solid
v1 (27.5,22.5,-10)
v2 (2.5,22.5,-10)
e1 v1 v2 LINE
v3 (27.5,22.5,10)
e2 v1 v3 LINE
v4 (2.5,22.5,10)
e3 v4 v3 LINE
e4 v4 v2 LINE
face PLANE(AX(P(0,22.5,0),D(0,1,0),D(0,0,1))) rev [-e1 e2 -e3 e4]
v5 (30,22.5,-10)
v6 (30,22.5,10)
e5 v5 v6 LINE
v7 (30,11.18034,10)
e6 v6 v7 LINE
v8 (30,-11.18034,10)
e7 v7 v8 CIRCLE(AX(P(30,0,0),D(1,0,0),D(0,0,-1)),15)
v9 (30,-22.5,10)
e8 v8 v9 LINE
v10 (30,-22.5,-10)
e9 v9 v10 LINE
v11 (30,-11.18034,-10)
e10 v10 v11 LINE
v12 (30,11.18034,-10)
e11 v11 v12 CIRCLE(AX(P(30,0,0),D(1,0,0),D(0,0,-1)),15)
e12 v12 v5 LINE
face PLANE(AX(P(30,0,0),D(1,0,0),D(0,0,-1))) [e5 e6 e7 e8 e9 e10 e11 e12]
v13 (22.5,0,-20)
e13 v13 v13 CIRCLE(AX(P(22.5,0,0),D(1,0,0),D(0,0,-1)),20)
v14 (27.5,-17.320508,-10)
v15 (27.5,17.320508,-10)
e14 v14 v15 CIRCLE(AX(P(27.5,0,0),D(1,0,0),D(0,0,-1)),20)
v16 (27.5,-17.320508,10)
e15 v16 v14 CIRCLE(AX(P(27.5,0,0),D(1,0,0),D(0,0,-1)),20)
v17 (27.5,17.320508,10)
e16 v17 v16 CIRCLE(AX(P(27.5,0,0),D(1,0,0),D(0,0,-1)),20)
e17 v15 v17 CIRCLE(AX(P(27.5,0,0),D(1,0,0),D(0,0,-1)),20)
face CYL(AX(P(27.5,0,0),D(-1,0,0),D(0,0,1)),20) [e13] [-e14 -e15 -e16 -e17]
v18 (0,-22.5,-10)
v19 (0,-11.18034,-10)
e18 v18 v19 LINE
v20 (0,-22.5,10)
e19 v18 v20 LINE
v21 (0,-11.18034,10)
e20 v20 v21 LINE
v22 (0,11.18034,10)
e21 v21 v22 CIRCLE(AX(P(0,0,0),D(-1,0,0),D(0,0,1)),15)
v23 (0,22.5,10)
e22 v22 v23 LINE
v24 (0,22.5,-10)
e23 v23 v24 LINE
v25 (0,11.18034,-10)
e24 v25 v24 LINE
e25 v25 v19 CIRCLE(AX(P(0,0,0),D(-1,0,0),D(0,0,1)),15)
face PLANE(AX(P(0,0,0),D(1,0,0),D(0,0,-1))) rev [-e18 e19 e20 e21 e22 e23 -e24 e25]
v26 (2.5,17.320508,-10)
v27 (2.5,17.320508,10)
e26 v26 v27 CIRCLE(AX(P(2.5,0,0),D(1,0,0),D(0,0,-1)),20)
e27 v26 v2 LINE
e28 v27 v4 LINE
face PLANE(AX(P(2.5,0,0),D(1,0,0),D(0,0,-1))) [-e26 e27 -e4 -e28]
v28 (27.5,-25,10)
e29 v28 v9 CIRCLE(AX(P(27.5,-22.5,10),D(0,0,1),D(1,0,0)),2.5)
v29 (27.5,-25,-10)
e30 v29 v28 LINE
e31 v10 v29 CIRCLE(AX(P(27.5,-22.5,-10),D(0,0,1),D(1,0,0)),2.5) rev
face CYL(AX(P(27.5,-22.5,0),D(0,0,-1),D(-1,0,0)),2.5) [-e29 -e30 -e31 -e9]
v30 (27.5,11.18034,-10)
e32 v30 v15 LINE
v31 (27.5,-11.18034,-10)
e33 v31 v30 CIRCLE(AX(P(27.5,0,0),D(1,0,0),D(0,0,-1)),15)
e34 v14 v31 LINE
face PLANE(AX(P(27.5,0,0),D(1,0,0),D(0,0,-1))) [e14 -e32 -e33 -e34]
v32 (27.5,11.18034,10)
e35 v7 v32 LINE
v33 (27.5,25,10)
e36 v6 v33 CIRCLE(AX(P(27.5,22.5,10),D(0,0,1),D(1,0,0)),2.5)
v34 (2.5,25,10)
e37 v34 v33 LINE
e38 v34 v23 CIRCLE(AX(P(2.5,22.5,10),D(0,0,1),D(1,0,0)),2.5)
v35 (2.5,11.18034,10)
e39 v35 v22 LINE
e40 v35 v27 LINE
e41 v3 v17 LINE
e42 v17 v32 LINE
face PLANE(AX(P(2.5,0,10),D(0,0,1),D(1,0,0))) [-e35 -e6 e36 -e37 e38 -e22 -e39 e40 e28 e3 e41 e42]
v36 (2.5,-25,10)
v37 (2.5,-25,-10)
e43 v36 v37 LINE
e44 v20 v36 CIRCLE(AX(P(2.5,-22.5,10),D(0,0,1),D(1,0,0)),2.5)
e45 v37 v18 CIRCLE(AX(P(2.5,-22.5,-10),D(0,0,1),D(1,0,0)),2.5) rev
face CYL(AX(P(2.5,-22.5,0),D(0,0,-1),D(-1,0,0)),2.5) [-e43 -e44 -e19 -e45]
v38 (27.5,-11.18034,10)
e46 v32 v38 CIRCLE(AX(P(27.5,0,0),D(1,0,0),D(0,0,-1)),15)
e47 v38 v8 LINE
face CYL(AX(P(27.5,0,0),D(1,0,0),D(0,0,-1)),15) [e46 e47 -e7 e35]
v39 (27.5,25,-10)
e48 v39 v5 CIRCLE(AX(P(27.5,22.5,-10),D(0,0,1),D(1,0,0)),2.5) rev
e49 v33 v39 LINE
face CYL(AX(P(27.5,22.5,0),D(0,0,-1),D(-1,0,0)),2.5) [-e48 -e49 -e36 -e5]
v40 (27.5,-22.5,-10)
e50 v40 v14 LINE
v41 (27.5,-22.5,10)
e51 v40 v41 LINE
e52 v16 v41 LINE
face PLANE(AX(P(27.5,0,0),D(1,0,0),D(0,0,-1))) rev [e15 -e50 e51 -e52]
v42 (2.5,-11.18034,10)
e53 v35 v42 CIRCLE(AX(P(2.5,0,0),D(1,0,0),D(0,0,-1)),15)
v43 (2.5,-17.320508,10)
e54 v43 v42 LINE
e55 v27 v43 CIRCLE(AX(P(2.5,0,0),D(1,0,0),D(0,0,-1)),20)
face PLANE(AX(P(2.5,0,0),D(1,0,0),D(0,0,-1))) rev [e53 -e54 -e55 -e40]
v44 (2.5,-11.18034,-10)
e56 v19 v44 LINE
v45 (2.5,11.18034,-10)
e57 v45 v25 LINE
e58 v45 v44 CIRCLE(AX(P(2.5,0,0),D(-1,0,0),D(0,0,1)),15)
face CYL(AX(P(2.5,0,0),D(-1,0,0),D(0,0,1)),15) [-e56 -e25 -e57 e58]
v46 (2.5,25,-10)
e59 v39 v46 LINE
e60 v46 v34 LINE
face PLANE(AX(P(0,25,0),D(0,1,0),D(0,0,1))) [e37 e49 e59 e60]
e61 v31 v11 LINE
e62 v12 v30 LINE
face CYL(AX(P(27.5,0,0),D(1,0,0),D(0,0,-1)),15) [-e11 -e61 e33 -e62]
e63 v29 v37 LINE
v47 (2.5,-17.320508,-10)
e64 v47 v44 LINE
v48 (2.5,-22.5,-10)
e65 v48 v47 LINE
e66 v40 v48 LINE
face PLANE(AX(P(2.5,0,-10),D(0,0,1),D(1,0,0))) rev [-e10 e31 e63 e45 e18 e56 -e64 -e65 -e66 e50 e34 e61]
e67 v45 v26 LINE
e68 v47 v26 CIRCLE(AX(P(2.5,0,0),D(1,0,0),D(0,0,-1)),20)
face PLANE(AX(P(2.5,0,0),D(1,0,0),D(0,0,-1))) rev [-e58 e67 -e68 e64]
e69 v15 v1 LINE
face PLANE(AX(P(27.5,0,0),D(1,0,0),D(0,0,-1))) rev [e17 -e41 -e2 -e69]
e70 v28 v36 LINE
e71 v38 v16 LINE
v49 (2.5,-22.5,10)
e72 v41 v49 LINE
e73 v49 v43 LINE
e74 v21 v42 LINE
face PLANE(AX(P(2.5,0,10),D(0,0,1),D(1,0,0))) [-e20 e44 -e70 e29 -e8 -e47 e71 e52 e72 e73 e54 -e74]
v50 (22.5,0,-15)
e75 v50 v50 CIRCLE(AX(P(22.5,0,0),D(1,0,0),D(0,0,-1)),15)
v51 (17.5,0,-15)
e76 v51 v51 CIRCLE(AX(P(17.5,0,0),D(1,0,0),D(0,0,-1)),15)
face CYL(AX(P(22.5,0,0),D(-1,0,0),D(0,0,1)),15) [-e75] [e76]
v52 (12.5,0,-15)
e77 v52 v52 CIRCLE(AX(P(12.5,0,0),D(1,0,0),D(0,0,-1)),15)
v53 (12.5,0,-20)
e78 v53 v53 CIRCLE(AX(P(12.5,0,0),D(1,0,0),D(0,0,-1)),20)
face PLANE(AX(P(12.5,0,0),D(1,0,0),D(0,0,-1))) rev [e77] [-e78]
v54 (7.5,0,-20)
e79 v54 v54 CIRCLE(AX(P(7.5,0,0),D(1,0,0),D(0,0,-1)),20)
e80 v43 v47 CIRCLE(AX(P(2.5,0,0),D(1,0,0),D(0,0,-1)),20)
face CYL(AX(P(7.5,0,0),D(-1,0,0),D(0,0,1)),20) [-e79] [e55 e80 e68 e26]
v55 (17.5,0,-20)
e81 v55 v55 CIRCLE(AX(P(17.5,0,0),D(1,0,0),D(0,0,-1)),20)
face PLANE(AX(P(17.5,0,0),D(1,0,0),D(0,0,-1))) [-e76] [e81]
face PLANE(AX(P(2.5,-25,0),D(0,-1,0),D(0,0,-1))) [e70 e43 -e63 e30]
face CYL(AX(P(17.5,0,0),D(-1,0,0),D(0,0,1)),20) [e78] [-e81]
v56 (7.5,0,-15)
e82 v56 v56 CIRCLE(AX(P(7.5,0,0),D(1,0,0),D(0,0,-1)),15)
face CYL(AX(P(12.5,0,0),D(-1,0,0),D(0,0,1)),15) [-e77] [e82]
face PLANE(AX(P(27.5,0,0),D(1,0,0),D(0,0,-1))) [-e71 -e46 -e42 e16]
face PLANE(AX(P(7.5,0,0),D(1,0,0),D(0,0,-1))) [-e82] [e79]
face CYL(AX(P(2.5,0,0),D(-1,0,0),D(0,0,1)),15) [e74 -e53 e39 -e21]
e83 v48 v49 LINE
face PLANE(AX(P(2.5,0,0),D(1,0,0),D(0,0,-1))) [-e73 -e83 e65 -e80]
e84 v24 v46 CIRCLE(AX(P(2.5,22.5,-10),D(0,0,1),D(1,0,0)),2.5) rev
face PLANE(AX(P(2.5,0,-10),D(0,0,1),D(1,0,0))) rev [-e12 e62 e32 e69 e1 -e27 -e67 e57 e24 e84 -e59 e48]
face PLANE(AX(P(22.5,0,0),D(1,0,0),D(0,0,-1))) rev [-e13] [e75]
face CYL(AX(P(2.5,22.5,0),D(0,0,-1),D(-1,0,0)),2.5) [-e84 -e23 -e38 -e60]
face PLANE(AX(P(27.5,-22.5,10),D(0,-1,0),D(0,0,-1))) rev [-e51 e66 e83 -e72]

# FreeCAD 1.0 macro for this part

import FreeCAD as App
import Part
import Sketcher
Q = App.Units.Quantity


def edges_at(feature, points):
    """Names of the edges that pass closest to the given points."""
    edges = feature.Shape.Edges
    near = lambda p: min(range(len(edges)), key=lambda i: edges[i].distToShape(Part.Vertex(*p))[0])
    return sorted({f"Edge{near(p) + 1}" for p in points})


def add_polygon(sketch, points):
    """Adds a closed chain of lines whose ends are joined by coincident constraints."""
    first, n = sketch.GeometryCount, len(points)
    for a, b in zip(points, points[1:] + points[:1]):
        sketch.addGeometry(Part.LineSegment(App.Vector(*a, 0), App.Vector(*b, 0)), False)
    for i in range(n):
        sketch.addConstraint(Sketcher.Constraint("Coincident", first + i, 2, first + (i + 1) % n, 1))

doc = App.newDocument("Part")
params = doc.addObject("Spreadsheet::Sheet", "Params")
for row, (alias, value) in enumerate([
    ("sketch1_height", "20 mm"),
    ("sketch1_width", "47.5 mm"),
    ("pad1_length", "2.5 mm"),
    ("sketch2_diameter", "40 mm"),
    ("pad2_length", "5 mm"),
    ("sketch3_diameter", "30 mm"),
    ("pad3_length", "5 mm"),
    ("sketch4_diameter", "40 mm"),
    ("pad4_length", "5 mm"),
    ("sketch5_diameter", "30 mm"),
    ("pad5_length", "5 mm"),
    ("sketch6_diameter", "40 mm"),
    ("pad6_length", "5 mm"),
    ("sketch7_height", "20 mm"),
    ("sketch7_width", "47.5 mm"),
    ("pad7_length", "2.5 mm"),
    ("sketch8_width", "30 mm"),
    ("sketch8_height", "20 mm"),
    ("pad8_length", "2.5 mm"),
    ("sketch9_height", "20 mm"),
    ("sketch9_width", "2.5 mm"),
    ("pad9_length", "25 mm"),
    ("sketch10_diameter", "30 mm"),
    ("pad10_length", "2.5 mm"),
    ("sketch11_diameter", "30 mm"),
    ("pad11_length", "2.5 mm"),
    ("fillet_radius", "2.5 mm"),
    ("fillet2_radius", "2.5 mm"),
], start=1):
    params.set(f"A{row}", alias)
    params.set(f"B{row}", "=" + value)
    params.setAlias(f"B{row}", alias)

body = doc.addObject("PartDesign::Body", "Body")

# Sketch on YZ plane
sketch1 = body.newObject("Sketcher::SketchObject", "Sketch")
sketch1.AttachmentSupport = (doc.getObject("YZ_Plane"), [""])
sketch1.MapMode = "FlatFace"
add_polygon(sketch1, [(22, 10), (-25, 10), (-25, -10), (22, -10)])  # lines 0-3
sketch1.addConstraint([
    Sketcher.Constraint("Horizontal", 0),
    Sketcher.Constraint("Vertical", 1),
    Sketcher.Constraint("Horizontal", 2),
    Sketcher.Constraint("Vertical", 3),
    Sketcher.Constraint("DistanceY", 1, 2, 1, 1, Q("20 mm")),
    Sketcher.Constraint("DistanceX", 0, 2, 0, 1, Q("47.5 mm")),
    Sketcher.Constraint("DistanceX", 0, 2, -1, 1, Q("25 mm")),
    Sketcher.Constraint("DistanceY", -1, 1, 0, 2, Q("10 mm")),
])
sketch1.setExpression("Constraints[8]", "Params.sketch1_height")
sketch1.setExpression("Constraints[9]", "Params.sketch1_width")
pad1 = body.newObject("PartDesign::Pad", "Pad")
pad1.Profile = sketch1
pad1.setExpression("Length", "Params.pad1_length")

# Sketch on YZ plane
sketch2 = body.newObject("Sketcher::SketchObject", "Sketch001")
sketch2.AttachmentSupport = (doc.getObject("YZ_Plane"), [""])
sketch2.MapMode = "FlatFace"
sketch2.AttachmentOffset = App.Placement(App.Vector(0, 0, 2.5), App.Rotation())
sketch2.addGeometry(Part.Circle(App.Vector(0, 0, 0), App.Vector(0, 0, 1), 20), False)
sketch2.addConstraint([
    Sketcher.Constraint("Coincident", 0, 3, -1, 1),
    Sketcher.Constraint("Diameter", 0, Q("40 mm")),
])
sketch2.setExpression("Constraints[1]", "Params.sketch2_diameter")
pad2 = body.newObject("PartDesign::Pad", "Pad001")
pad2.Profile = sketch2
pad2.setExpression("Length", "Params.pad2_length")

# Sketch on YZ plane
sketch3 = body.newObject("Sketcher::SketchObject", "Sketch002")
sketch3.AttachmentSupport = (doc.getObject("YZ_Plane"), [""])
sketch3.MapMode = "FlatFace"
sketch3.AttachmentOffset = App.Placement(App.Vector(0, 0, 7.5), App.Rotation())
sketch3.addGeometry(Part.Circle(App.Vector(0, 0, 0), App.Vector(0, 0, 1), 15), False)
sketch3.addConstraint([
    Sketcher.Constraint("Coincident", 0, 3, -1, 1),
    Sketcher.Constraint("Diameter", 0, Q("30 mm")),
])
sketch3.setExpression("Constraints[1]", "Params.sketch3_diameter")
pad3 = body.newObject("PartDesign::Pad", "Pad002")
pad3.Profile = sketch3
pad3.setExpression("Length", "Params.pad3_length")

# Sketch on YZ plane
sketch4 = body.newObject("Sketcher::SketchObject", "Sketch003")
sketch4.AttachmentSupport = (doc.getObject("YZ_Plane"), [""])
sketch4.MapMode = "FlatFace"
sketch4.AttachmentOffset = App.Placement(App.Vector(0, 0, 12.5), App.Rotation())
sketch4.addGeometry(Part.Circle(App.Vector(0, 0, 0), App.Vector(0, 0, 1), 20), False)
sketch4.addConstraint([
    Sketcher.Constraint("Coincident", 0, 3, -1, 1),
    Sketcher.Constraint("Diameter", 0, Q("40 mm")),
])
sketch4.setExpression("Constraints[1]", "Params.sketch4_diameter")
pad4 = body.newObject("PartDesign::Pad", "Pad003")
pad4.Profile = sketch4
pad4.setExpression("Length", "Params.pad4_length")

# Sketch on YZ plane
sketch5 = body.newObject("Sketcher::SketchObject", "Sketch004")
sketch5.AttachmentSupport = (doc.getObject("YZ_Plane"), [""])
sketch5.MapMode = "FlatFace"
sketch5.AttachmentOffset = App.Placement(App.Vector(0, 0, 17.5), App.Rotation())
sketch5.addGeometry(Part.Circle(App.Vector(0, 0, 0), App.Vector(0, 0, 1), 15), False)
sketch5.addConstraint([
    Sketcher.Constraint("Coincident", 0, 3, -1, 1),
    Sketcher.Constraint("Diameter", 0, Q("30 mm")),
])
sketch5.setExpression("Constraints[1]", "Params.sketch5_diameter")
pad5 = body.newObject("PartDesign::Pad", "Pad004")
pad5.Profile = sketch5
pad5.setExpression("Length", "Params.pad5_length")

# Sketch on YZ plane
sketch6 = body.newObject("Sketcher::SketchObject", "Sketch005")
sketch6.AttachmentSupport = (doc.getObject("YZ_Plane"), [""])
sketch6.MapMode = "FlatFace"
sketch6.AttachmentOffset = App.Placement(App.Vector(0, 0, 22.5), App.Rotation())
sketch6.addGeometry(Part.Circle(App.Vector(0, 0, 0), App.Vector(0, 0, 1), 20), False)
sketch6.addConstraint([
    Sketcher.Constraint("Coincident", 0, 3, -1, 1),
    Sketcher.Constraint("Diameter", 0, Q("40 mm")),
])
sketch6.setExpression("Constraints[1]", "Params.sketch6_diameter")
pad6 = body.newObject("PartDesign::Pad", "Pad005")
pad6.Profile = sketch6
pad6.setExpression("Length", "Params.pad6_length")

# Sketch on YZ plane
sketch7 = body.newObject("Sketcher::SketchObject", "Sketch006")
sketch7.AttachmentSupport = (doc.getObject("YZ_Plane"), [""])
sketch7.MapMode = "FlatFace"
sketch7.AttachmentOffset = App.Placement(App.Vector(0, 0, 27.5), App.Rotation())
add_polygon(sketch7, [(-25, 10), (-25, -10), (22, -10), (22, 10)])  # lines 0-3
sketch7.addConstraint([
    Sketcher.Constraint("Vertical", 0),
    Sketcher.Constraint("Horizontal", 1),
    Sketcher.Constraint("Vertical", 2),
    Sketcher.Constraint("Horizontal", 3),
    Sketcher.Constraint("DistanceY", 0, 2, 0, 1, Q("20 mm")),
    Sketcher.Constraint("DistanceX", 1, 1, 1, 2, Q("47.5 mm")),
    Sketcher.Constraint("DistanceX", 0, 2, -1, 1, Q("25 mm")),
    Sketcher.Constraint("DistanceY", 0, 2, -1, 1, Q("10 mm")),
])
sketch7.setExpression("Constraints[8]", "Params.sketch7_height")
sketch7.setExpression("Constraints[9]", "Params.sketch7_width")
pad7 = body.newObject("PartDesign::Pad", "Pad006")
pad7.Profile = sketch7
pad7.setExpression("Length", "Params.pad7_length")

# Sketch on XZ plane
sketch8 = body.newObject("Sketcher::SketchObject", "Sketch007")
sketch8.AttachmentSupport = (doc.getObject("XZ_Plane"), [""])
sketch8.MapMode = "FlatFace"
sketch8.AttachmentOffset = App.Placement(App.Vector(0, 0, -22.5), App.Rotation())
add_polygon(sketch8, [(0, -10), (0, 10), (30, 10), (30, -10)])  # lines 0-3
sketch8.addConstraint([
    Sketcher.Constraint("Vertical", 0),
    Sketcher.Constraint("Horizontal", 1),
    Sketcher.Constraint("Vertical", 2),
    Sketcher.Constraint("Horizontal", 3),
    Sketcher.Constraint("Symmetric", 0, 2, 3, 2, -1, 1),
    Sketcher.Constraint("DistanceX", 1, 1, 1, 2, Q("30 mm")),
    Sketcher.Constraint("DistanceY", 0, 1, 0, 2, Q("20 mm")),
])
sketch8.setExpression("Constraints[9]", "Params.sketch8_width")
sketch8.setExpression("Constraints[10]", "Params.sketch8_height")
pad8 = body.newObject("PartDesign::Pad", "Pad007")
pad8.Profile = sketch8
pad8.setExpression("Length", "Params.pad8_length")
pad8.Reversed = True

# Sketch on YZ plane
sketch9 = body.newObject("Sketcher::SketchObject", "Sketch008")
sketch9.AttachmentSupport = (doc.getObject("YZ_Plane"), [""])
sketch9.MapMode = "FlatFace"
sketch9.AttachmentOffset = App.Placement(App.Vector(0, 0, 2.5), App.Rotation())
add_polygon(sketch9, [(-22.5, 10), (-25, 10), (-25, -10), (-22.5, -10)])  # lines 0-3
sketch9.addConstraint([
    Sketcher.Constraint("Horizontal", 0),
    Sketcher.Constraint("Vertical", 1),
    Sketcher.Constraint("Horizontal", 2),
    Sketcher.Constraint("Vertical", 3),
    Sketcher.Constraint("DistanceY", 1, 2, 1, 1, Q("20 mm")),
    Sketcher.Constraint("DistanceX", 0, 2, 0, 1, Q("2.5 mm")),
    Sketcher.Constraint("DistanceX", 0, 2, -1, 1, Q("25 mm")),
    Sketcher.Constraint("DistanceY", -1, 1, 0, 2, Q("10 mm")),
])
sketch9.setExpression("Constraints[8]", "Params.sketch9_height")
sketch9.setExpression("Constraints[9]", "Params.sketch9_width")
pad9 = body.newObject("PartDesign::Pad", "Pad008")
pad9.Profile = sketch9
pad9.setExpression("Length", "Params.pad9_length")

# Sketch on YZ plane
sketch10 = body.newObject("Sketcher::SketchObject", "Sketch009")
sketch10.AttachmentSupport = (doc.getObject("YZ_Plane"), [""])
sketch10.MapMode = "FlatFace"
sketch10.AttachmentOffset = App.Placement(App.Vector(0, 0, 30), App.Rotation())
sketch10.addGeometry(Part.Circle(App.Vector(0, 0, 0), App.Vector(0, 0, 1), 15), False)
sketch10.addConstraint([
    Sketcher.Constraint("Coincident", 0, 3, -1, 1),
    Sketcher.Constraint("Diameter", 0, Q("30 mm")),
])
sketch10.setExpression("Constraints[1]", "Params.sketch10_diameter")
pad10 = body.newObject("PartDesign::Pad", "Pad009")
pad10.Profile = sketch10
pad10.setExpression("Length", "Params.pad10_length")
pad10.Reversed = True

# Sketch on YZ plane
sketch11 = body.newObject("Sketcher::SketchObject", "Sketch010")
sketch11.AttachmentSupport = (doc.getObject("YZ_Plane"), [""])
sketch11.MapMode = "FlatFace"
sketch11.addGeometry(Part.Circle(App.Vector(0, 0, 0), App.Vector(0, 0, 1), 15), False)
sketch11.addConstraint([
    Sketcher.Constraint("Coincident", 0, 3, -1, 1),
    Sketcher.Constraint("Diameter", 0, Q("30 mm")),
])
sketch11.setExpression("Constraints[1]", "Params.sketch11_diameter")
pad11 = body.newObject("PartDesign::Pad", "Pad010")
pad11.Profile = sketch11
pad11.setExpression("Length", "Params.pad11_length")
doc.recompute()

fillet = body.newObject("PartDesign::Fillet", "Fillet")
fillet.Base = (pad11, edges_at(pad11, [(0, 25, 0), (30, 25, 0)]))
fillet.setExpression("Radius", "Params.fillet_radius")
doc.recompute()

fillet2 = body.newObject("PartDesign::Fillet", "Fillet001")
fillet2.Base = (fillet, edges_at(fillet, [(30, -25, 0), (0, -25, 0)]))
fillet2.setExpression("Radius", "Params.fillet2_radius")

doc.recompute()
